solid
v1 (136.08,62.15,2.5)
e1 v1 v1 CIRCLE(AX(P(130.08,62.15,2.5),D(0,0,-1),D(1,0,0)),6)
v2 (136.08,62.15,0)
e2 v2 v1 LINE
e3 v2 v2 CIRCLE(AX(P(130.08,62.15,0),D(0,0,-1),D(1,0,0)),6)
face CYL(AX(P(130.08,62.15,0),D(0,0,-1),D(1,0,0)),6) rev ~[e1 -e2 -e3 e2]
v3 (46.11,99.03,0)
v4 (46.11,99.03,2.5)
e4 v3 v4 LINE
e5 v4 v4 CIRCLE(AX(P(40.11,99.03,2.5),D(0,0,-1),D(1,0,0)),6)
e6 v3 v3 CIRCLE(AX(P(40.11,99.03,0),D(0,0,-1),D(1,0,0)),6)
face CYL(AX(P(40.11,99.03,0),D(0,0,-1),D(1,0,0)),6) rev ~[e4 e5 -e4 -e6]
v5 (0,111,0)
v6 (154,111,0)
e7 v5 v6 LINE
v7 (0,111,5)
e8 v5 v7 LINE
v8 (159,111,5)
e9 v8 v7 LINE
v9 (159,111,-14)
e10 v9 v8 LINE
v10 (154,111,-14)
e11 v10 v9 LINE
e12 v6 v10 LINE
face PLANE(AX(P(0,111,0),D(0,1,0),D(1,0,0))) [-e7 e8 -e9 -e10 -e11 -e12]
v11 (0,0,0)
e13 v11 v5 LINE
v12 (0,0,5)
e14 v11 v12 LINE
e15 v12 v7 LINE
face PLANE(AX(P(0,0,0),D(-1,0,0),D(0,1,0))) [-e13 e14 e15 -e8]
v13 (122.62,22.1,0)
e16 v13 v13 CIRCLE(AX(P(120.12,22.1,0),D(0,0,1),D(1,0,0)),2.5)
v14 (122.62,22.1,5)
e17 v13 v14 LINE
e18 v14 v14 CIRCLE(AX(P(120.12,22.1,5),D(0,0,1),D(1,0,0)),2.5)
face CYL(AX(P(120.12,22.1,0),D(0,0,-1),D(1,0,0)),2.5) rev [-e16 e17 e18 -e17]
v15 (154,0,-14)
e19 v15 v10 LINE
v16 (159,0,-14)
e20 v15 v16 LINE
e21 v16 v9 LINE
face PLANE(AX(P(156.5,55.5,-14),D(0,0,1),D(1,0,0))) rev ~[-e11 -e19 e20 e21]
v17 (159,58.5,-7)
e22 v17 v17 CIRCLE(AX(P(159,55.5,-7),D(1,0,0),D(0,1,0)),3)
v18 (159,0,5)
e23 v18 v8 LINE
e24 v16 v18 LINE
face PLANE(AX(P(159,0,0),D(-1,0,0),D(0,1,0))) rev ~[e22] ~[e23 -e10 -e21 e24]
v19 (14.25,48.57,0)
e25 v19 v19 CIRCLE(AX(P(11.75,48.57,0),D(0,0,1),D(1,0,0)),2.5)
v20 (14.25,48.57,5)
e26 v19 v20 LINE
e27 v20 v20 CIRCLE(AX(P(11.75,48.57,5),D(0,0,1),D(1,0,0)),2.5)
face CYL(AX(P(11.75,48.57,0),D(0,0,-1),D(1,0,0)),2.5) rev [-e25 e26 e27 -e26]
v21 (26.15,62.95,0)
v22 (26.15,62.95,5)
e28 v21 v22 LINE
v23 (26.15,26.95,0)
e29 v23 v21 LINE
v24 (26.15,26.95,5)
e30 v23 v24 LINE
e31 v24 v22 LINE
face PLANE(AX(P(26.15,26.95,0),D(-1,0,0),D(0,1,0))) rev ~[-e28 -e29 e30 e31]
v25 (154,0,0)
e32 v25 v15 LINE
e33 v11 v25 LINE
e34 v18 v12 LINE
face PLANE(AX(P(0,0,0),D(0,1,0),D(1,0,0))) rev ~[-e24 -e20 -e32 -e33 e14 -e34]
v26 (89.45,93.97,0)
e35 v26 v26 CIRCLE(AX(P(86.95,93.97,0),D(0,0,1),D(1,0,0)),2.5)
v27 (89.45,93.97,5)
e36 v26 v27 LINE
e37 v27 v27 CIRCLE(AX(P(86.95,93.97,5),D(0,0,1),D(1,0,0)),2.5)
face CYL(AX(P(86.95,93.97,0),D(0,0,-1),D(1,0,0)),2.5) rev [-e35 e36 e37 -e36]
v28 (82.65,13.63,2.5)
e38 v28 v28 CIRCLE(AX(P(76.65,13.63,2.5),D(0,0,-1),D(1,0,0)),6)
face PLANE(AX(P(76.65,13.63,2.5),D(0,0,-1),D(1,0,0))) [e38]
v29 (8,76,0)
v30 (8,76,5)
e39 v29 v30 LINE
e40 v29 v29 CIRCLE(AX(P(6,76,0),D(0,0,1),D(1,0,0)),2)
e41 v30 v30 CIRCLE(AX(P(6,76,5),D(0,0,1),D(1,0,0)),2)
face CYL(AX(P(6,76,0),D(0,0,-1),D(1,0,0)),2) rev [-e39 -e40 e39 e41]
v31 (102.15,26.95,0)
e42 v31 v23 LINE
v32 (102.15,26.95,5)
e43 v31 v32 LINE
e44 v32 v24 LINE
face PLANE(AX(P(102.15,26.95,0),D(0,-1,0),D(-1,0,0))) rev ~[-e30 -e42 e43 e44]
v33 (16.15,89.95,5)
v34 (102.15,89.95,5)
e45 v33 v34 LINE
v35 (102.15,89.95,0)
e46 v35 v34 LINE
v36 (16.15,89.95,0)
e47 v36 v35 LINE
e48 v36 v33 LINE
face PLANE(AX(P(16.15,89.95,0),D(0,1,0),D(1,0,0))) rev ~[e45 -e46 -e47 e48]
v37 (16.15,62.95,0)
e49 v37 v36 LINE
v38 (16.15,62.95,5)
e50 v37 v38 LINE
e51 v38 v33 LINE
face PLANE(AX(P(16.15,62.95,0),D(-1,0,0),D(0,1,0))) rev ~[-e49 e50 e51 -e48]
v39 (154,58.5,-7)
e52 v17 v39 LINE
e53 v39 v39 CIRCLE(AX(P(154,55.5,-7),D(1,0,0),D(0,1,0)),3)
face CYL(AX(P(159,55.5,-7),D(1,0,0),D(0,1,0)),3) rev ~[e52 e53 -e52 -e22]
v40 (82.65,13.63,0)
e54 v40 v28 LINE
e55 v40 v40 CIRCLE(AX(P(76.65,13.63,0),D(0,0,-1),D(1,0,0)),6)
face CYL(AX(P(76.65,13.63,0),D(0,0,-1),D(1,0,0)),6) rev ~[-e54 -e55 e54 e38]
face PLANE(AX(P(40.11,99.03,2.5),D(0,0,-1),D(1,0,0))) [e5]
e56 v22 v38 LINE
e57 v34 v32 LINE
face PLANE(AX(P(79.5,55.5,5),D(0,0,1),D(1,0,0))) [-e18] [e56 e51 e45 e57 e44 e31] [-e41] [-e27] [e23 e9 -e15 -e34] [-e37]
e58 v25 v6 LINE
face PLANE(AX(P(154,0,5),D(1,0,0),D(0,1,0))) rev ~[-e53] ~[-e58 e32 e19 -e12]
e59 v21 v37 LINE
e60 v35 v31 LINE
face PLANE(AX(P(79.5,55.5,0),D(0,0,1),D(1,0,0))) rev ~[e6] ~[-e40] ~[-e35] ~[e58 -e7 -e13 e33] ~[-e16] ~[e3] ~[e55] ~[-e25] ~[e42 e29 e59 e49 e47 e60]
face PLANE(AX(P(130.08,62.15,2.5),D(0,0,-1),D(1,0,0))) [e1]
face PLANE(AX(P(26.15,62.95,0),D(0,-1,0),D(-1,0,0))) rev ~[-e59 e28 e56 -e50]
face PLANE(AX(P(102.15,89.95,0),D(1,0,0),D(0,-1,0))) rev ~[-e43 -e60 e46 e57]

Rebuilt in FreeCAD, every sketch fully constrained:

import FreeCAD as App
import Part
import Sketcher

V = App.Vector

doc = App.newDocument("Part")
body = doc.addObject("PartDesign::Body", "Body")

# Sketch on XY plane
sketch1 = doc.addObject("Sketcher::SketchObject", "Sketch")
body.addObject(sketch1)
sketch1.AttachmentSupport = (doc.XY_Plane, [""])
sketch1.MapMode = "FlatFace"
sketch1.addGeometry([
    Part.LineSegment(V(0, 111, 0), V(0, 0, 0)),  # 0
    Part.LineSegment(V(0, 0, 0), V(159, 0, 0)),  # 1
    Part.LineSegment(V(159, 0, 0), V(159, 111, 0)),  # 2
    Part.LineSegment(V(159, 111, 0), V(0, 111, 0)),  # 3
    Part.Circle(V(11.8, 48.6, 0), V(0, 0, 1), 2.5),  # 4
    Part.Circle(V(120.1, 22.1, 0), V(0, 0, 1), 2.5),  # 5
    Part.Circle(V(6, 76, 0), V(0, 0, 1), 2),  # 6
    Part.LineSegment(V(26.1, 63, 0), V(16.1, 63, 0)),  # 7
    Part.LineSegment(V(16.1, 63, 0), V(16.1, 90, 0)),  # 8
    Part.LineSegment(V(16.1, 90, 0), V(102.2, 90, 0)),  # 9
    Part.LineSegment(V(102.2, 90, 0), V(102.2, 26.9, 0)),  # 10
    Part.LineSegment(V(102.2, 26.9, 0), V(26.1, 26.9, 0)),  # 11
    Part.LineSegment(V(26.1, 26.9, 0), V(26.1, 63, 0)),  # 12
    Part.Circle(V(87, 94, 0), V(0, 0, 1), 2.5),  # 13
], False)
sketch1.addConstraint([
    Sketcher.Constraint("Coincident", 0, 2, 1, 1),
    Sketcher.Constraint("Coincident", 1, 2, 2, 1),
    Sketcher.Constraint("Coincident", 2, 2, 3, 1),
    Sketcher.Constraint("Coincident", 3, 2, 0, 1),
    Sketcher.Constraint("Coincident", 7, 2, 8, 1),
    Sketcher.Constraint("Coincident", 8, 2, 9, 1),
    Sketcher.Constraint("Coincident", 9, 2, 10, 1),
    Sketcher.Constraint("Coincident", 10, 2, 11, 1),
    Sketcher.Constraint("Coincident", 11, 2, 12, 1),
    Sketcher.Constraint("Coincident", 12, 2, 7, 1),
    Sketcher.Constraint("Vertical", 0),
    Sketcher.Constraint("Horizontal", 1),
    Sketcher.Constraint("Vertical", 2),
    Sketcher.Constraint("Horizontal", 3),
    Sketcher.Constraint("Horizontal", 7),
    Sketcher.Constraint("Vertical", 8),
    Sketcher.Constraint("Horizontal", 9),
    Sketcher.Constraint("Vertical", 10),
    Sketcher.Constraint("Horizontal", 11),
    Sketcher.Constraint("Vertical", 12),
    Sketcher.Constraint("Coincident", 0, 2, -1, 1),
    Sketcher.Constraint("Equal", 4, 5),
    Sketcher.Constraint("Equal", 5, 13),
    Sketcher.Constraint("Diameter", 4, 5.0),
    Sketcher.Constraint("Diameter", 6, 4.0),
    Sketcher.Constraint("DistanceX", 1, 1, 1, 2, 159.0),
    Sketcher.Constraint("DistanceX", 7, 2, 7, 1, 10.0),
    Sketcher.Constraint("DistanceX", 9, 1, 9, 2, 86.0),
    Sketcher.Constraint("DistanceY", 0, 2, 0, 1, 111.0),
    Sketcher.Constraint("DistanceY", 8, 1, 8, 2, 27.0),
    Sketcher.Constraint("DistanceY", 10, 2, 10, 1, 63.0),
    Sketcher.Constraint("DistanceX", -1, 1, 6, 3, 6.0),
    Sketcher.Constraint("DistanceY", -1, 1, 6, 3, 76.0),
    Sketcher.Constraint("DistanceY", -1, 1, 5, 3, 22.1),
    Sketcher.Constraint("DistanceX", 4, 3, 13, 3, 75.2),
    Sketcher.Constraint("DistanceY", 4, 3, 13, 3, 45.4),
    Sketcher.Constraint("DistanceX", 4, 3, 7, 2, 4.4),
    Sketcher.Constraint("DistanceX", -1, 1, 4, 3, 11.75),
    Sketcher.Constraint("DistanceY", -1, 1, 4, 3, 48.57),
    Sketcher.Constraint("DistanceX", -1, 1, 5, 3, 120.12),
    Sketcher.Constraint("DistanceY", -1, 1, 7, 2, 62.95),
])
pad1 = doc.addObject("PartDesign::Pad", "Pad")
body.addObject(pad1)
pad1.Profile = sketch1
pad1.Length = 5

# Sketch on XY plane
sketch2 = doc.addObject("Sketcher::SketchObject", "Sketch001")
body.addObject(sketch2)
sketch2.AttachmentSupport = (doc.XY_Plane, [""])
sketch2.MapMode = "FlatFace"
sketch2.AttachmentOffset = App.Placement(V(0, 0, 5), App.Rotation())
sketch2.addGeometry([
    Part.LineSegment(V(154, 111, 0), V(154, 0, 0)),
    Part.LineSegment(V(154, 0, 0), V(159, 0, 0)),
    Part.LineSegment(V(159, 0, 0), V(159, 111, 0)),
    Part.LineSegment(V(159, 111, 0), V(154, 111, 0)),
], False)
sketch2.addConstraint([
    Sketcher.Constraint("Coincident", 0, 2, 1, 1),
    Sketcher.Constraint("Coincident", 1, 2, 2, 1),
    Sketcher.Constraint("Coincident", 2, 2, 3, 1),
    Sketcher.Constraint("Coincident", 3, 2, 0, 1),
    Sketcher.Constraint("Vertical", 0),
    Sketcher.Constraint("Horizontal", 1),
    Sketcher.Constraint("Vertical", 2),
    Sketcher.Constraint("Horizontal", 3),
    Sketcher.Constraint("PointOnObject", 0, 2, -1),
    Sketcher.Constraint("DistanceX", 1, 1, 1, 2, 5.0),
    Sketcher.Constraint("DistanceY", 0, 2, 0, 1, 111.0),
    Sketcher.Constraint("DistanceX", -1, 1, 0, 2, 154.0),
])
pad2 = doc.addObject("PartDesign::Pad", "Pad001")
body.addObject(pad2)
pad2.Profile = sketch2
pad2.Length = 19
pad2.Reversed = True

# Sketch on YZ plane
sketch3 = doc.addObject("Sketcher::SketchObject", "Sketch002")
body.addObject(sketch3)
sketch3.AttachmentSupport = (doc.YZ_Plane, [""])
sketch3.MapMode = "FlatFace"
sketch3.AttachmentOffset = App.Placement(V(0, 0, 159), App.Rotation())
sketch3.addGeometry(Part.Circle(V(55.5, -7, 0), V(0, 0, 1), 3), False)
sketch3.addConstraint([
    Sketcher.Constraint("Diameter", 0, 6.0),
    Sketcher.Constraint("DistanceY", 0, 3, -1, 1, 7.0),
    Sketcher.Constraint("DistanceX", -1, 1, 0, 3, 55.5),
])
pocket1 = doc.addObject("PartDesign::Pocket", "Pocket")
body.addObject(pocket1)
pocket1.Profile = sketch3
pocket1.Length = 5

# Sketch on XY plane
sketch4 = doc.addObject("Sketcher::SketchObject", "Sketch003")
body.addObject(sketch4)
sketch4.AttachmentSupport = (doc.XY_Plane, [""])
sketch4.MapMode = "FlatFace"
sketch4.addGeometry([
    Part.Circle(V(77, 14, 0), V(0, 0, 1), 6),
    Part.Circle(V(130, 62, 0), V(0, 0, 1), 6),
    Part.Circle(V(40, 99, 0), V(0, 0, 1), 6),
], False)
sketch4.addConstraint([
    Sketcher.Constraint("Equal", 0, 1),
    Sketcher.Constraint("Equal", 1, 2),
    Sketcher.Constraint("Diameter", 0, 12.0),
    Sketcher.Constraint("DistanceY", 0, 3, 2, 3, 85.4),
    Sketcher.Constraint("DistanceX", -1, 1, 0, 3, 76.65),
    Sketcher.Constraint("DistanceY", -1, 1, 0, 3, 13.63),
    Sketcher.Constraint("DistanceX", -1, 1, 1, 3, 130.08),
    Sketcher.Constraint("DistanceY", -1, 1, 1, 3, 62.15),
    Sketcher.Constraint("DistanceX", -1, 1, 2, 3, 40.11),
])
pocket2 = doc.addObject("PartDesign::Pocket", "Pocket001")
body.addObject(pocket2)
pocket2.Profile = sketch4
pocket2.Length = 2.5
pocket2.Reversed = True

doc.recompute()
